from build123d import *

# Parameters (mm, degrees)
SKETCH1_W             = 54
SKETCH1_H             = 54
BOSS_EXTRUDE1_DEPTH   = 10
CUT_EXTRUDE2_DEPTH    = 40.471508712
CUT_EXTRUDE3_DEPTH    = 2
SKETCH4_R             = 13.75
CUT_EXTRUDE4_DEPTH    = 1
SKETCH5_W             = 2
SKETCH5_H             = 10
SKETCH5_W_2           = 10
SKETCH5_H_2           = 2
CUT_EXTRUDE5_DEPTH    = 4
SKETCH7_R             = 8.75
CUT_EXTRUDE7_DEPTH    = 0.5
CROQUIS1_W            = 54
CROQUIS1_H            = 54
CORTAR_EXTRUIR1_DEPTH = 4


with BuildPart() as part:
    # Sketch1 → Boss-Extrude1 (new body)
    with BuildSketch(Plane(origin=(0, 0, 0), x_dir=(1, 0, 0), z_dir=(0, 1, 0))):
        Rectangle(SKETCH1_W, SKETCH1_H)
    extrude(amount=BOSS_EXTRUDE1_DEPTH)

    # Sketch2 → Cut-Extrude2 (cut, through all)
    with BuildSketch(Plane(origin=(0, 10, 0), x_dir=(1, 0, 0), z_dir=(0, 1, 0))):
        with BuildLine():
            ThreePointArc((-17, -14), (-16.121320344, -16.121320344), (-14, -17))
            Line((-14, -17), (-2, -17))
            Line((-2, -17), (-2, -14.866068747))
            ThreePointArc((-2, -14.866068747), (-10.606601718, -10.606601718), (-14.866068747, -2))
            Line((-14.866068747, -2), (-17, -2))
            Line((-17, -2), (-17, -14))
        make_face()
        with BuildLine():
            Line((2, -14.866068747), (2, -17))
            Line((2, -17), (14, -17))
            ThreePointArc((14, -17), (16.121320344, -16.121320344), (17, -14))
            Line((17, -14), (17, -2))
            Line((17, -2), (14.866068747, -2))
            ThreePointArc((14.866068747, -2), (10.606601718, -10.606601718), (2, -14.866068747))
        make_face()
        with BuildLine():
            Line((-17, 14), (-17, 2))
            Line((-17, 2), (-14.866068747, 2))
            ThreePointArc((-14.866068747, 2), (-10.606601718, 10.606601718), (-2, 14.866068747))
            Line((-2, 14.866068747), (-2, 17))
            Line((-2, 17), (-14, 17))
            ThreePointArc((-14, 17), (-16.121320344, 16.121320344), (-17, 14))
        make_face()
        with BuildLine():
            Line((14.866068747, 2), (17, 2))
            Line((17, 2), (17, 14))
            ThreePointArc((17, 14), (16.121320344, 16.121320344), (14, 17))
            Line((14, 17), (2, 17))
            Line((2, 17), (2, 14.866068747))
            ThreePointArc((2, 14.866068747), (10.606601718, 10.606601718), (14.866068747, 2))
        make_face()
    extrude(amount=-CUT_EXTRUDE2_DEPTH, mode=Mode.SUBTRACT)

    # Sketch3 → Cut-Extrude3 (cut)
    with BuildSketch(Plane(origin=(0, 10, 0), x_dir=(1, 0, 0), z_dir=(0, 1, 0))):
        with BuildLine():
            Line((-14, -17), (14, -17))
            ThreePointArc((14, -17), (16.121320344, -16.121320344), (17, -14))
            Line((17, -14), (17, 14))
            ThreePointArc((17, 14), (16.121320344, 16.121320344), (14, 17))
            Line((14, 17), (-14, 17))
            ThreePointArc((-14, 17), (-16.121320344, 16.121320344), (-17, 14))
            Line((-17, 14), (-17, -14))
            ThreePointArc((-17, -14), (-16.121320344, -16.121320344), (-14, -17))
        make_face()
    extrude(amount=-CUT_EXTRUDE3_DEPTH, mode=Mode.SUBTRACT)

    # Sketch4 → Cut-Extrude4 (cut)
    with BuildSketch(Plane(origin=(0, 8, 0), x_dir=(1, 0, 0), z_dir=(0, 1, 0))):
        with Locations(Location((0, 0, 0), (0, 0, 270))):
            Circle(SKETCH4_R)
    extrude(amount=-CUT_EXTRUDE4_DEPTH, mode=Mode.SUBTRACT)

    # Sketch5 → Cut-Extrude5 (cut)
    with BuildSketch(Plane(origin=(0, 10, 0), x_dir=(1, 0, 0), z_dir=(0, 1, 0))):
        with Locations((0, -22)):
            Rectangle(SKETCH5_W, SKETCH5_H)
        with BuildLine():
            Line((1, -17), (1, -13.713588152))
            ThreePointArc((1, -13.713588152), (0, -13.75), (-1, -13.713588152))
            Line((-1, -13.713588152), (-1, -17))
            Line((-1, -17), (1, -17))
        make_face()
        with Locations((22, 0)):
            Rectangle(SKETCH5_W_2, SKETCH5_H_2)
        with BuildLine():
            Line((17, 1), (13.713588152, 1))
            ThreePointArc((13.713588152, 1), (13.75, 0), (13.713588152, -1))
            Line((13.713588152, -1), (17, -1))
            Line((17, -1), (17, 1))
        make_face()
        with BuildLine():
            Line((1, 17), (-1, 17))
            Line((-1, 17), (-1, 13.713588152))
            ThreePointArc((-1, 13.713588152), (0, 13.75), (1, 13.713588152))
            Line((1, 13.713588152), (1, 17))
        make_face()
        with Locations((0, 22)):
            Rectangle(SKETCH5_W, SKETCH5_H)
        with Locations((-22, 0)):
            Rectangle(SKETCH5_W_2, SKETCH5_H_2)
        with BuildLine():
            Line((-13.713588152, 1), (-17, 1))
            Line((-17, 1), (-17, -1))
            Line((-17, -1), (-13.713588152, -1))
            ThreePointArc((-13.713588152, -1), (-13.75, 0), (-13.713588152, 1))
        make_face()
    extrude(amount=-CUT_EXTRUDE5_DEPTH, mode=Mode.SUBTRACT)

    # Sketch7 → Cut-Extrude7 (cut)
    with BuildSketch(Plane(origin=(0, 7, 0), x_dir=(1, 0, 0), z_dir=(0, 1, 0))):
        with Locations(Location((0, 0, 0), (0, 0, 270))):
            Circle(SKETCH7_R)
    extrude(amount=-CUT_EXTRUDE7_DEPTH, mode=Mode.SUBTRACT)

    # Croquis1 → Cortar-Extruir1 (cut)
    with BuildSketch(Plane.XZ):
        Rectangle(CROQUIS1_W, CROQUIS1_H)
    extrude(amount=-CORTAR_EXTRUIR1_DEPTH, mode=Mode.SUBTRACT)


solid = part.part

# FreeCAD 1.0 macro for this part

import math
import FreeCAD as App
import Part
import Sketcher
from FreeCAD import Vector


def add_polygon(sketch, points):
    """Adds a closed chain of lines whose ends are joined by coincident constraints."""
    first, n = sketch.GeometryCount, len(points)
    for a, b in zip(points, points[1:] + points[:1]):
        sketch.addGeometry(Part.LineSegment(App.Vector(*a, 0), App.Vector(*b, 0)), False)
    for i in range(n):
        sketch.addConstraint(Sketcher.Constraint("Coincident", first + i, 2, first + (i + 1) % n, 1))

doc = App.newDocument("Part")
body = doc.addObject("PartDesign::Body", "Body")

# Sketch on XZ plane
sketch1 = doc.addObject("Sketcher::SketchObject", "Sketch")
body.addObject(sketch1)
sketch1.AttachmentSupport = (doc.XZ_Plane, [""])
sketch1.MapMode = "FlatFace"
add_polygon(sketch1, [(-27, -27), (-27, 27), (27, 27), (27, -27)])  # lines 0-3
sketch1.addConstraint([
    Sketcher.Constraint("Vertical", 0),
    Sketcher.Constraint("Horizontal", 1),
    Sketcher.Constraint("Vertical", 2),
    Sketcher.Constraint("Horizontal", 3),
    Sketcher.Constraint("Symmetric", 0, 2, 2, 2, -1, 1),
    Sketcher.Constraint("Equal", 3, 0),
    Sketcher.Constraint("DistanceX", 1, 1, 1, 2, 54.0),
])
pad1 = doc.addObject("PartDesign::Pad", "Pad")
body.addObject(pad1)
pad1.Profile = sketch1
pad1.Length = 10
pad1.Reversed = True

# Sketch on XZ plane
sketch2 = doc.addObject("Sketcher::SketchObject", "Sketch001")
body.addObject(sketch2)
sketch2.AttachmentSupport = (doc.XZ_Plane, [""])
sketch2.MapMode = "FlatFace"
sketch2.AttachmentOffset = App.Placement(Vector(0, 0, -10), App.Rotation())
sketch2.addGeometry([
    Part.ArcOfCircle(Part.Circle(Vector(-14, 14, 0), Vector(0, 0, 1), 3), math.radians(90), math.radians(180)),  # 0
    Part.LineSegment(Vector(-14, 17, 0), Vector(-2, 17, 0)),  # 1
    Part.LineSegment(Vector(-2, 17, 0), Vector(-2, 14.9, 0)),  # 2
    Part.ArcOfCircle(Part.Circle(Vector(0, 0, 0), Vector(0, 0, 1), 15), math.radians(98), math.radians(172)),  # 3
    Part.LineSegment(Vector(-14.9, 2, 0), Vector(-17, 2, 0)),  # 4
    Part.LineSegment(Vector(-17, 2, 0), Vector(-17, 14, 0)),  # 5
    Part.LineSegment(Vector(2, 14.9, 0), Vector(2, 17, 0)),  # 6
    Part.LineSegment(Vector(2, 17, 0), Vector(14, 17, 0)),  # 7
    Part.ArcOfCircle(Part.Circle(Vector(14, 14, 0), Vector(0, 0, 1), 3), math.radians(0), math.radians(90)),  # 8
    Part.LineSegment(Vector(17, 14, 0), Vector(17, 2, 0)),  # 9
    Part.LineSegment(Vector(17, 2, 0), Vector(14.9, 2, 0)),  # 10
    Part.ArcOfCircle(Part.Circle(Vector(0, 0, 0), Vector(0, 0, 1), 15), math.radians(8), math.radians(82)),  # 11
    Part.LineSegment(Vector(-17, -14, 0), Vector(-17, -2, 0)),  # 12
    Part.LineSegment(Vector(-17, -2, 0), Vector(-14.9, -2, 0)),  # 13
    Part.ArcOfCircle(Part.Circle(Vector(0, 0, 0), Vector(0, 0, 1), 15), math.radians(-172), math.radians(-98)),  # 14
    Part.LineSegment(Vector(-2, -14.9, 0), Vector(-2, -17, 0)),  # 15
    Part.LineSegment(Vector(-2, -17, 0), Vector(-14, -17, 0)),  # 16
    Part.ArcOfCircle(Part.Circle(Vector(-14, -14, 0), Vector(0, 0, 1), 3), math.radians(180), math.radians(270)),  # 17
    Part.LineSegment(Vector(14.9, -2, 0), Vector(17, -2, 0)),  # 18
    Part.LineSegment(Vector(17, -2, 0), Vector(17, -14, 0)),  # 19
    Part.ArcOfCircle(Part.Circle(Vector(14, -14, 0), Vector(0, 0, 1), 3), math.radians(-90), math.radians(0)),  # 20
    Part.LineSegment(Vector(14, -17, 0), Vector(2, -17, 0)),  # 21
    Part.LineSegment(Vector(2, -17, 0), Vector(2, -14.9, 0)),  # 22
    Part.ArcOfCircle(Part.Circle(Vector(0, 0, 0), Vector(0, 0, 1), 15), math.radians(-82), math.radians(-8)),  # 23
], False)
sketch2.addConstraint([
    Sketcher.Constraint("Tangent", 0, 1, 1, 1),
    Sketcher.Constraint("Coincident", 1, 2, 2, 1),
    Sketcher.Constraint("Coincident", 2, 2, 3, 1),
    Sketcher.Constraint("Coincident", 3, 2, 4, 1),
    Sketcher.Constraint("Coincident", 4, 2, 5, 1),
    Sketcher.Constraint("Tangent", 5, 2, 0, 2),
    Sketcher.Constraint("Coincident", 6, 2, 7, 1),
    Sketcher.Constraint("Tangent", 7, 2, 8, 2),
    Sketcher.Constraint("Tangent", 8, 1, 9, 1),
    Sketcher.Constraint("Coincident", 9, 2, 10, 1),
    Sketcher.Constraint("Coincident", 10, 2, 11, 1),
    Sketcher.Constraint("Coincident", 11, 2, 6, 1),
    Sketcher.Constraint("Coincident", 12, 2, 13, 1),
    Sketcher.Constraint("Coincident", 13, 2, 14, 1),
    Sketcher.Constraint("Coincident", 14, 2, 15, 1),
    Sketcher.Constraint("Coincident", 15, 2, 16, 1),
    Sketcher.Constraint("Tangent", 16, 2, 17, 2),
    Sketcher.Constraint("Tangent", 17, 1, 12, 1),
    Sketcher.Constraint("Coincident", 18, 2, 19, 1),
    Sketcher.Constraint("Tangent", 19, 2, 20, 2),
    Sketcher.Constraint("Tangent", 20, 1, 21, 1),
    Sketcher.Constraint("Coincident", 21, 2, 22, 1),
    Sketcher.Constraint("Coincident", 22, 2, 23, 1),
    Sketcher.Constraint("Coincident", 23, 2, 18, 1),
    Sketcher.Constraint("Horizontal", 1),
    Sketcher.Constraint("Vertical", 2),
    Sketcher.Constraint("Horizontal", 4),
    Sketcher.Constraint("Vertical", 5),
    Sketcher.Constraint("Vertical", 6),
    Sketcher.Constraint("Horizontal", 7),
    Sketcher.Constraint("Vertical", 9),
    Sketcher.Constraint("Horizontal", 10),
    Sketcher.Constraint("Vertical", 12),
    Sketcher.Constraint("Horizontal", 13),
    Sketcher.Constraint("Vertical", 15),
    Sketcher.Constraint("Horizontal", 16),
    Sketcher.Constraint("Horizontal", 18),
    Sketcher.Constraint("Vertical", 19),
    Sketcher.Constraint("Horizontal", 21),
    Sketcher.Constraint("Vertical", 22),
    Sketcher.Constraint("Coincident", 3, 3, -1, 1),
    Sketcher.Constraint("Coincident", 11, 3, -1, 1),
    Sketcher.Constraint("Coincident", 14, 3, -1, 1),
    Sketcher.Constraint("Coincident", 23, 3, -1, 1),
    Sketcher.Constraint("Equal", 0, 8),
    Sketcher.Constraint("Equal", 3, 11),
    Sketcher.Constraint("Equal", 11, 14),
    Sketcher.Constraint("Equal", 8, 17),
    Sketcher.Constraint("Equal", 17, 20),
    Sketcher.Constraint("Equal", 14, 23),
    Sketcher.Constraint("Symmetric", 8, 3, 17, 3, -1, 1),
    Sketcher.Constraint("Symmetric", 0, 3, 20, 3, -1, 1),
    Sketcher.Constraint("Symmetric", 0, 3, 8, 3, -2),
    Sketcher.Constraint("Horizontal", 4, 2, 9, 2),
    Sketcher.Constraint("Horizontal", 2, 2, 11, 2),
    Sketcher.Constraint("Horizontal", 13, 2, 18, 2),
    Sketcher.Constraint("Horizontal", 14, 2, 22, 2),
    Sketcher.Constraint("Vertical", 3, 2, 13, 2),
    Sketcher.Constraint("Vertical", 2, 2, 14, 2),
    Sketcher.Constraint("Equal", 18, 2),
    Sketcher.Constraint("Equal", 21, 5),
    Sketcher.Constraint("Radius", 0, 3.0),
    Sketcher.Constraint("Radius", 3, 15.0),
    Sketcher.Constraint("DistanceX", 1, 1, 1, 2, 12.0),
    Sketcher.Constraint("DistanceX", 0, 3, -1, 1, 14.0),
])
pocket1 = doc.addObject("PartDesign::Pocket", "Pocket")
body.addObject(pocket1)
pocket1.Profile = sketch2
pocket1.Type = "ThroughAll"
pocket1.Reversed = True

# Sketch on XZ plane
sketch3 = doc.addObject("Sketcher::SketchObject", "Sketch002")
body.addObject(sketch3)
sketch3.AttachmentSupport = (doc.XZ_Plane, [""])
sketch3.MapMode = "FlatFace"
sketch3.AttachmentOffset = App.Placement(Vector(0, 0, -10), App.Rotation())
sketch3.addGeometry([
    Part.LineSegment(Vector(-14, 17, 0), Vector(14, 17, 0)),  # 0
    Part.ArcOfCircle(Part.Circle(Vector(14, 14, 0), Vector(0, 0, 1), 3), math.radians(0), math.radians(90)),  # 1
    Part.LineSegment(Vector(17, 14, 0), Vector(17, -14, 0)),  # 2
    Part.ArcOfCircle(Part.Circle(Vector(14, -14, 0), Vector(0, 0, 1), 3), math.radians(-90), math.radians(0)),  # 3
    Part.LineSegment(Vector(14, -17, 0), Vector(-14, -17, 0)),  # 4
    Part.ArcOfCircle(Part.Circle(Vector(-14, -14, 0), Vector(0, 0, 1), 3), math.radians(180), math.radians(270)),  # 5
    Part.LineSegment(Vector(-17, -14, 0), Vector(-17, 14, 0)),  # 6
    Part.ArcOfCircle(Part.Circle(Vector(-14, 14, 0), Vector(0, 0, 1), 3), math.radians(90), math.radians(180)),  # 7
], False)
sketch3.addConstraint([
    Sketcher.Constraint("Tangent", 0, 2, 1, 2),
    Sketcher.Constraint("Tangent", 1, 1, 2, 1),
    Sketcher.Constraint("Tangent", 2, 2, 3, 2),
    Sketcher.Constraint("Tangent", 3, 1, 4, 1),
    Sketcher.Constraint("Tangent", 4, 2, 5, 2),
    Sketcher.Constraint("Tangent", 5, 1, 6, 1),
    Sketcher.Constraint("Tangent", 6, 2, 7, 2),
    Sketcher.Constraint("Tangent", 7, 1, 0, 1),
    Sketcher.Constraint("Horizontal", 0),
    Sketcher.Constraint("Vertical", 2),
    Sketcher.Constraint("Horizontal", 4),
    Sketcher.Constraint("Vertical", 6),
    Sketcher.Constraint("Equal", 1, 3),
    Sketcher.Constraint("Equal", 3, 5),
    Sketcher.Constraint("Equal", 5, 7),
    Sketcher.Constraint("Symmetric", 1, 3, 5, 3, -1, 1),
    Sketcher.Constraint("Equal", 4, 2),
    Sketcher.Constraint("Radius", 1, 3.0),
    Sketcher.Constraint("DistanceX", 0, 1, 0, 2, 28.0),
])
pocket2 = doc.addObject("PartDesign::Pocket", "Pocket001")
body.addObject(pocket2)
pocket2.Profile = sketch3
pocket2.Length = 2
pocket2.Reversed = True

# Sketch on XZ plane
sketch4 = doc.addObject("Sketcher::SketchObject", "Sketch003")
body.addObject(sketch4)
sketch4.AttachmentSupport = (doc.XZ_Plane, [""])
sketch4.MapMode = "FlatFace"
sketch4.AttachmentOffset = App.Placement(Vector(0, 0, -8), App.Rotation())
sketch4.addGeometry(Part.Circle(Vector(0, 0, 0), Vector(0, 0, 1), 14), False)
sketch4.addConstraint([
    Sketcher.Constraint("Coincident", 0, 3, -1, 1),
    Sketcher.Constraint("Diameter", 0, 27.5),
])
pocket3 = doc.addObject("PartDesign::Pocket", "Pocket002")
body.addObject(pocket3)
pocket3.Profile = sketch4
pocket3.Length = 1
pocket3.Reversed = True

# Sketch on XZ plane
sketch5 = doc.addObject("Sketcher::SketchObject", "Sketch004")
body.addObject(sketch5)
sketch5.AttachmentSupport = (doc.XZ_Plane, [""])
sketch5.MapMode = "FlatFace"
sketch5.AttachmentOffset = App.Placement(Vector(0, 0, -10), App.Rotation())
sketch5.addGeometry([
    Part.LineSegment(Vector(-1, 27, 0), Vector(1, 27, 0)),  # 0
    Part.LineSegment(Vector(1, 27, 0), Vector(1, 13.7, 0)),  # 1
    Part.ArcOfCircle(Part.Circle(Vector(0, 0, 0), Vector(0, 0, 1), 13.8), math.radians(85.83), math.radians(94.17)),  # 2
    Part.LineSegment(Vector(-1, 13.7, 0), Vector(-1, 27, 0)),  # 3
    Part.LineSegment(Vector(27, 1, 0), Vector(27, -1, 0)),  # 4
    Part.LineSegment(Vector(27, -1, 0), Vector(13.7, -1, 0)),  # 5
    Part.ArcOfCircle(Part.Circle(Vector(0, 0, 0), Vector(0, 0, 1), 13.8), math.radians(-4.17), math.radians(4.17)),  # 6
    Part.LineSegment(Vector(13.7, 1, 0), Vector(27, 1, 0)),  # 7
    Part.ArcOfCircle(Part.Circle(Vector(0, 0, 0), Vector(0, 0, 1), 13.8), math.radians(-94.17), math.radians(-85.83)),  # 8
    Part.LineSegment(Vector(1, -13.7, 0), Vector(1, -27, 0)),  # 9
    Part.LineSegment(Vector(1, -27, 0), Vector(-1, -27, 0)),  # 10
    Part.LineSegment(Vector(-1, -27, 0), Vector(-1, -13.7, 0)),  # 11
    Part.LineSegment(Vector(-27, -1, 0), Vector(-27, 1, 0)),  # 12
    Part.LineSegment(Vector(-27, 1, 0), Vector(-13.7, 1, 0)),  # 13
    Part.ArcOfCircle(Part.Circle(Vector(0, 0, 0), Vector(0, 0, 1), 13.8), math.radians(175.83), math.radians(184.17)),  # 14
    Part.LineSegment(Vector(-13.7, -1, 0), Vector(-27, -1, 0)),  # 15
], False)
sketch5.addConstraint([
    Sketcher.Constraint("Coincident", 0, 2, 1, 1),
    Sketcher.Constraint("Coincident", 1, 2, 2, 1),
    Sketcher.Constraint("Coincident", 2, 2, 3, 1),
    Sketcher.Constraint("Coincident", 3, 2, 0, 1),
    Sketcher.Constraint("Coincident", 4, 2, 5, 1),
    Sketcher.Constraint("Coincident", 5, 2, 6, 1),
    Sketcher.Constraint("Coincident", 6, 2, 7, 1),
    Sketcher.Constraint("Coincident", 7, 2, 4, 1),
    Sketcher.Constraint("Coincident", 8, 2, 9, 1),
    Sketcher.Constraint("Coincident", 9, 2, 10, 1),
    Sketcher.Constraint("Coincident", 10, 2, 11, 1),
    Sketcher.Constraint("Coincident", 11, 2, 8, 1),
    Sketcher.Constraint("Coincident", 12, 2, 13, 1),
    Sketcher.Constraint("Coincident", 13, 2, 14, 1),
    Sketcher.Constraint("Coincident", 14, 2, 15, 1),
    Sketcher.Constraint("Coincident", 15, 2, 12, 1),
    Sketcher.Constraint("Horizontal", 0),
    Sketcher.Constraint("Vertical", 1),
    Sketcher.Constraint("Vertical", 3),
    Sketcher.Constraint("Vertical", 4),
    Sketcher.Constraint("Horizontal", 5),
    Sketcher.Constraint("Horizontal", 7),
    Sketcher.Constraint("Vertical", 9),
    Sketcher.Constraint("Horizontal", 10),
    Sketcher.Constraint("Vertical", 11),
    Sketcher.Constraint("Vertical", 12),
    Sketcher.Constraint("Horizontal", 13),
    Sketcher.Constraint("Horizontal", 15),
    Sketcher.Constraint("Coincident", 2, 3, -1, 1),
    Sketcher.Constraint("Coincident", 6, 3, -1, 1),
    Sketcher.Constraint("Coincident", 8, 3, -1, 1),
    Sketcher.Constraint("Coincident", 14, 3, -1, 1),
    Sketcher.Constraint("Equal", 2, 6),
    Sketcher.Constraint("Equal", 6, 8),
    Sketcher.Constraint("Equal", 8, 14),
    Sketcher.Constraint("Symmetric", 3, 2, 9, 2, -1, 1),
    Sketcher.Constraint("Symmetric", 4, 2, 12, 2, -1, 1),
    Sketcher.Constraint("Horizontal", 1, 2, 2, 2),
    Sketcher.Constraint("Horizontal", 8, 2, 11, 2),
    Sketcher.Constraint("Horizontal", 7, 2, 12, 2),
    Sketcher.Constraint("Horizontal", 5, 2, 14, 2),
    Sketcher.Constraint("Equal", 15, 1),
    Sketcher.Constraint("Equal", 10, 4),
    Sketcher.Constraint("DistanceX", 0, 1, 0, 2, 2.0),
    Sketcher.Constraint("Radius", 2, 13.75),
    Sketcher.Constraint("DistanceY", -1, 1, 0, 2, 27.0),
])
pocket4 = doc.addObject("PartDesign::Pocket", "Pocket003")
body.addObject(pocket4)
pocket4.Profile = sketch5
pocket4.Length = 4
pocket4.Reversed = True

# Sketch on XZ plane
sketch6 = doc.addObject("Sketcher::SketchObject", "Sketch005")
body.addObject(sketch6)
sketch6.AttachmentSupport = (doc.XZ_Plane, [""])
sketch6.MapMode = "FlatFace"
sketch6.AttachmentOffset = App.Placement(Vector(0, 0, -7), App.Rotation())
sketch6.addGeometry(Part.Circle(Vector(0, 0, 0), Vector(0, 0, 1), 9), False)
sketch6.addConstraint([
    Sketcher.Constraint("Coincident", 0, 3, -1, 1),
    Sketcher.Constraint("Diameter", 0, 17.5),
])
pocket5 = doc.addObject("PartDesign::Pocket", "Pocket004")
body.addObject(pocket5)
pocket5.Profile = sketch6
pocket5.Length = 0.5
pocket5.Reversed = True

# Sketch on XZ plane
sketch7 = doc.addObject("Sketcher::SketchObject", "Sketch006")
body.addObject(sketch7)
sketch7.AttachmentSupport = (doc.XZ_Plane, [""])
sketch7.MapMode = "FlatFace"
add_polygon(sketch7, [(-27, 27), (-27, -27), (27, -27), (27, 27)])  # lines 0-3
sketch7.addConstraint([
    Sketcher.Constraint("Vertical", 0),
    Sketcher.Constraint("Horizontal", 1),
    Sketcher.Constraint("Vertical", 2),
    Sketcher.Constraint("Horizontal", 3),
    Sketcher.Constraint("Symmetric", 0, 2, 2, 2, -1, 1),
    Sketcher.Constraint("Equal", 3, 0),
    Sketcher.Constraint("DistanceX", 1, 1, 1, 2, 54.0),
])
pocket6 = doc.addObject("PartDesign::Pocket", "Pocket005")
body.addObject(pocket6)
pocket6.Profile = sketch7
pocket6.Length = 4

doc.recompute()
